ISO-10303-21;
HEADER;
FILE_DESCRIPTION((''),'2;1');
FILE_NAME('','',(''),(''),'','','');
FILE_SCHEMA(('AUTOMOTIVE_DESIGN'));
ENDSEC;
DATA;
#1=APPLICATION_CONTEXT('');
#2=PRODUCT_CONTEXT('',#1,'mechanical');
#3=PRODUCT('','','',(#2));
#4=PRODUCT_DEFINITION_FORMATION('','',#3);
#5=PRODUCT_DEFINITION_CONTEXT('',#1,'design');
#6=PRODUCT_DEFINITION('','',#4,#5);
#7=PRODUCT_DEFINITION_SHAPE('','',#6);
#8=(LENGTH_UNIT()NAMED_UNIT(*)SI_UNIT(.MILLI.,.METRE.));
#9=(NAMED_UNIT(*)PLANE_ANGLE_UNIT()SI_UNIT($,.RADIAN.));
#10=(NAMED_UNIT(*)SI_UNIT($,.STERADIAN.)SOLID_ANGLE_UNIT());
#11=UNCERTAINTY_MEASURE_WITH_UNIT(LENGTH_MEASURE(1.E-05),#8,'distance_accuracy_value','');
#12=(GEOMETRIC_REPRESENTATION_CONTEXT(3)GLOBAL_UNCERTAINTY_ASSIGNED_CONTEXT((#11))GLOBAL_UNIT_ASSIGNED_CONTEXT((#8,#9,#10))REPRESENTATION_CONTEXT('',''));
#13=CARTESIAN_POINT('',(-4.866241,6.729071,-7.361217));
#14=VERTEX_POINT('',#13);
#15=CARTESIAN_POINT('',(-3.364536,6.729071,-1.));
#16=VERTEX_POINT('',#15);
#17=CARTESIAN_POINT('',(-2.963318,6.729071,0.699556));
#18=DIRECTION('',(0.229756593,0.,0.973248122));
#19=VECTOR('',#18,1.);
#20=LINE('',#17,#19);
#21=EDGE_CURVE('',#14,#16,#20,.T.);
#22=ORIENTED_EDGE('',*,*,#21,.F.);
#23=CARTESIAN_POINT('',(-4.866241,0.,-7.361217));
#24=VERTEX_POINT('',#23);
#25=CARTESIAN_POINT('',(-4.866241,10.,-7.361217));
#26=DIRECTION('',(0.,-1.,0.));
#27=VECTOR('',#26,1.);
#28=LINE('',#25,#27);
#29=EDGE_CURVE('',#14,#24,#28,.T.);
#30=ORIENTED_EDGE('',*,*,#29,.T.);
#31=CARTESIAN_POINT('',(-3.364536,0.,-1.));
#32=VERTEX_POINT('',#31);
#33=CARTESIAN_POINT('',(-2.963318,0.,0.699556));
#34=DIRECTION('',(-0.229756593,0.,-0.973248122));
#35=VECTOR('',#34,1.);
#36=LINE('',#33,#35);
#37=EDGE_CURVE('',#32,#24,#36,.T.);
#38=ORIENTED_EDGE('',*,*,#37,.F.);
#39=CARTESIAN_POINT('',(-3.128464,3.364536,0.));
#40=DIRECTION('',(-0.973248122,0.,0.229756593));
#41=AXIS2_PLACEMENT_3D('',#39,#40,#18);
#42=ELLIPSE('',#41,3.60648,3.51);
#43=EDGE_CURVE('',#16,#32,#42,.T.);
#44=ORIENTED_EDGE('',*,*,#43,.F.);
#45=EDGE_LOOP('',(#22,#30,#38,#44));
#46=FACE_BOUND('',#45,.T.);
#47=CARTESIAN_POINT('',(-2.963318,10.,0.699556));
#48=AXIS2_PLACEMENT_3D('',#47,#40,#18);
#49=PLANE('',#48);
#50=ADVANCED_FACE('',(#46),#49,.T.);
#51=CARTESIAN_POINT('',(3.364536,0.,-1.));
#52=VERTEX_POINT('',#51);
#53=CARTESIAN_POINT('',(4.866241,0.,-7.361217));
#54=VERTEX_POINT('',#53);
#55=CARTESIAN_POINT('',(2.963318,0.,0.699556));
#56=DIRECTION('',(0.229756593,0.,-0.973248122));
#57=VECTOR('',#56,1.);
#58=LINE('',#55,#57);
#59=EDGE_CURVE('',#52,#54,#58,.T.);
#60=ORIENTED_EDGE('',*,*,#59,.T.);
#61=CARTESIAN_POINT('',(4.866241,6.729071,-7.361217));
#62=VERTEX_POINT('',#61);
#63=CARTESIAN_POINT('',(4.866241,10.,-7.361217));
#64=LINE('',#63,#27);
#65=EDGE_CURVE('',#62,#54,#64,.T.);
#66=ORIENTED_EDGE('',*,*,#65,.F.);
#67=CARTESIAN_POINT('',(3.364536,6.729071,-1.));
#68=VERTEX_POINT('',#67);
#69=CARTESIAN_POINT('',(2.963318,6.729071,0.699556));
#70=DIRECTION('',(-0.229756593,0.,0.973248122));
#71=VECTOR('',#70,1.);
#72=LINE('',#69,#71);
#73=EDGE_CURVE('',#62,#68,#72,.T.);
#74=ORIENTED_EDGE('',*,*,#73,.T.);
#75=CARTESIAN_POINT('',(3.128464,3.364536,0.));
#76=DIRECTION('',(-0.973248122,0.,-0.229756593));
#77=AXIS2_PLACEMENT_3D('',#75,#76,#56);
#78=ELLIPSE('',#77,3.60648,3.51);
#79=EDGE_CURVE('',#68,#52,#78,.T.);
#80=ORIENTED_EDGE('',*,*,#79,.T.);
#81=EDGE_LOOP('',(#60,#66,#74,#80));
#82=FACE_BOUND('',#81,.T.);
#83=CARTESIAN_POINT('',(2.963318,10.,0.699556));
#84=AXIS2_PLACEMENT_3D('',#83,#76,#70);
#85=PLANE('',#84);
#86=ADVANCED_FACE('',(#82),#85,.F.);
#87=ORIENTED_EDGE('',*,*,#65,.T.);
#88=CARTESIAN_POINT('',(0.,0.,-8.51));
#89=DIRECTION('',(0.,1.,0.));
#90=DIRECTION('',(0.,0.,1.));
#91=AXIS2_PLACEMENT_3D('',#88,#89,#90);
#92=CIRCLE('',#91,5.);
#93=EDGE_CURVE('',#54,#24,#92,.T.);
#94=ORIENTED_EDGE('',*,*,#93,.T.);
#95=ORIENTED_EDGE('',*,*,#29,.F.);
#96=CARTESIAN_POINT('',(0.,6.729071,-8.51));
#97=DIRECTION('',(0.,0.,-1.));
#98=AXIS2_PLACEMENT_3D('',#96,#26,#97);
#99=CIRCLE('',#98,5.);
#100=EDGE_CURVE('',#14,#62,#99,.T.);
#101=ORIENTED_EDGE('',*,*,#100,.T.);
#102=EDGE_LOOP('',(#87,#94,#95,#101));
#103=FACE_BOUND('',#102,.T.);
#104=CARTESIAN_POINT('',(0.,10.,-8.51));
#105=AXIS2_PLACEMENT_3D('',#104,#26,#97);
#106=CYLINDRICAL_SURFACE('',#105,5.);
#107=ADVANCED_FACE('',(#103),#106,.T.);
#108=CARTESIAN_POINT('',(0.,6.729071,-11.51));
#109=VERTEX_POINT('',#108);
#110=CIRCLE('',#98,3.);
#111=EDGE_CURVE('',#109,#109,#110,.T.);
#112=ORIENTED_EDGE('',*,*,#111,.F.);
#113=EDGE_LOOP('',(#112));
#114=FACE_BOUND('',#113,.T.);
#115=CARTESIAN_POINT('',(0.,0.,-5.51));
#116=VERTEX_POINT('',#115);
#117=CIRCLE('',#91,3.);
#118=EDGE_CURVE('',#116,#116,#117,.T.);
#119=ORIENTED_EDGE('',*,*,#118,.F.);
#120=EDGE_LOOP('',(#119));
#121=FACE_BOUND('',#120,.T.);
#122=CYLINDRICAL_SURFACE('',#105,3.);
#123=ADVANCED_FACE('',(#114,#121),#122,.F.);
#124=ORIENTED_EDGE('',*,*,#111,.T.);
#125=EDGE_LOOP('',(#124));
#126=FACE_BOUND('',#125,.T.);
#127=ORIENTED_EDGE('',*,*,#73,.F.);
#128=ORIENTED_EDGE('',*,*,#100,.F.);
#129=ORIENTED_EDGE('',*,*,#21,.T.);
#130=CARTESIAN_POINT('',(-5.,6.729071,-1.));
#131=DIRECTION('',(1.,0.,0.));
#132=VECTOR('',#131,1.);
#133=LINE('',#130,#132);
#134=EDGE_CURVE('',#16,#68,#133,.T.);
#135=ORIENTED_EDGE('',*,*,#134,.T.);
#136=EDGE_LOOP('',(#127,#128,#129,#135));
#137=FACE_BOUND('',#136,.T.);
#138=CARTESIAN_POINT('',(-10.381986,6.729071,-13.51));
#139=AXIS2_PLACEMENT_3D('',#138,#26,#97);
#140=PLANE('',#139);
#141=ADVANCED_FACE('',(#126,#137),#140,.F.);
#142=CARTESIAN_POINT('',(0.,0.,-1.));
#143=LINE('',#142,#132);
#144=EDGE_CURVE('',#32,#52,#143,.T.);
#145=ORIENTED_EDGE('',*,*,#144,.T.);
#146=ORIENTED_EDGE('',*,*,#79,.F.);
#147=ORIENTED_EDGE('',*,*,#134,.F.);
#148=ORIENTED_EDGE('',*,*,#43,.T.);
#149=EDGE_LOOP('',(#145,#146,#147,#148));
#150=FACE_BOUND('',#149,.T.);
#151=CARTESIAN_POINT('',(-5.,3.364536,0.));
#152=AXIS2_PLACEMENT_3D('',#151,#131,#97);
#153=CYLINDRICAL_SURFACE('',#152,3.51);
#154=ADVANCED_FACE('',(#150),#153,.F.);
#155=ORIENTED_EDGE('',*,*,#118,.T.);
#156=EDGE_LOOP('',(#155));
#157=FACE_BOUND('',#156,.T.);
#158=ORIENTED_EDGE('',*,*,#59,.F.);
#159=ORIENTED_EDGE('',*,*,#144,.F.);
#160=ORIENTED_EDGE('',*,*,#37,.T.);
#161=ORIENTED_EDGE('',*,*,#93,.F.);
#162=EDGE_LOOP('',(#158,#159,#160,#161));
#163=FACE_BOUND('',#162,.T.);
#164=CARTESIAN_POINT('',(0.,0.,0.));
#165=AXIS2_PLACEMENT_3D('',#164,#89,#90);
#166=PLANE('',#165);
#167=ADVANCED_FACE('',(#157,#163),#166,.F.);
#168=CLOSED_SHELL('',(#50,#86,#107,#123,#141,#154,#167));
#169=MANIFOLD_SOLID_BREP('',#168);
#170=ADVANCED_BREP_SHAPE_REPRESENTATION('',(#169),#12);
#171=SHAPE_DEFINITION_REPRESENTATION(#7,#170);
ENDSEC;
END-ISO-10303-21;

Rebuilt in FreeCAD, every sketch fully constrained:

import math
import FreeCAD as App
import Part
import Sketcher
from FreeCAD import Vector

doc = App.newDocument("Part")
body = doc.addObject("PartDesign::Body", "Body")

# Sketch on XZ plane
sketch1 = body.newObject("Sketcher::SketchObject", "Sketch")
sketch1.AttachmentSupport = (doc.getObject("XZ_Plane"), [""])
sketch1.MapMode = "FlatFace"
sketch1.addGeometry([
    Part.ArcOfCircle(Part.Circle(Vector(0, -8.51, 0), Vector(0, 0, 1), 5), math.radians(166.717258), math.radians(373.282742)),  # 0
    Part.LineSegment(Vector(-4.866241, -7.361217, 0), Vector(-3.364536, -1, 0)),  # 1
    Part.LineSegment(Vector(-3.364536, -1, 0), Vector(3.364536, -1, 0)),  # 2
    Part.LineSegment(Vector(3.364536, -1, 0), Vector(4.866241, -7.361217, 0)),  # 3
    Part.Circle(Vector(0, -8.51, 0), Vector(0, 0, 1), 3),  # 4
], False)
sketch1.addConstraint([
    Sketcher.Constraint("Tangent", 0, 1, 1, 1),
    Sketcher.Constraint("Coincident", 1, 2, 2, 1),
    Sketcher.Constraint("Coincident", 2, 2, 3, 1),
    Sketcher.Constraint("Tangent", 3, 2, 0, 2),
    Sketcher.Constraint("Horizontal", 2),
    Sketcher.Constraint("Coincident", 4, 3, 0, 3),
    Sketcher.Constraint("Symmetric", 0, 1, 3, 2, -2),
    Sketcher.Constraint("Diameter", 4, 6.0),
    Sketcher.Constraint("Radius", 0, 5.0),
    Sketcher.Constraint("DistanceY", 1, 2, -1, 1, 1.0),
    Sketcher.Constraint("DistanceY", 0, 3, -1, 1, 8.51),
    Sketcher.Constraint("DistanceX", 2, 1, 2, 2, 6.729071),
])
pad1 = body.newObject("PartDesign::Pad", "Pad")
pad1.Profile = sketch1
pad1.Length = 10
pad1.Reversed = True

# Sketch on YZ plane
sketch2 = body.newObject("Sketcher::SketchObject", "Sketch001")
sketch2.AttachmentSupport = (doc.getObject("YZ_Plane"), [""])
sketch2.MapMode = "FlatFace"
sketch2.addGeometry(Part.Circle(Vector(3.364536, 0, 0), Vector(0, 0, 1), 3.51), False)
sketch2.addConstraint([
    Sketcher.Constraint("PointOnObject", 0, 3, -1),
    Sketcher.Constraint("Diameter", 0, 7.02),
    Sketcher.Constraint("DistanceX", -1, 1, 0, 3, 3.364536),
])
pocket1 = body.newObject("PartDesign::Pocket", "Pocket")
pocket1.Profile = sketch2
pocket1.Type = "ThroughAll"
pocket1.Midplane = True

# Sketch on XY plane
sketch3 = body.newObject("Sketcher::SketchObject", "Sketch002")
sketch3.AttachmentSupport = (doc.getObject("XY_Plane"), [""])
sketch3.MapMode = "FlatFace"
sketch3.AttachmentOffset = App.Placement(Vector(0, 0, -1), App.Rotation())
sketch3.addGeometry([
    Part.LineSegment(Vector(-10.381986, 6.729071, 0), Vector(12.651385, 6.729071, 0)),
    Part.LineSegment(Vector(12.651385, 6.729071, 0), Vector(6.885028, 11.685096, 0)),
    Part.LineSegment(Vector(6.885028, 11.685096, 0), Vector(-4.618479, 12.095501, 0)),
    Part.LineSegment(Vector(-4.618479, 12.095501, 0), Vector(-10.381986, 6.729071, 0)),
], False)
sketch3.addConstraint([
    Sketcher.Constraint("Coincident", 0, 2, 1, 1),
    Sketcher.Constraint("Coincident", 1, 2, 2, 1),
    Sketcher.Constraint("Coincident", 2, 2, 3, 1),
    Sketcher.Constraint("Coincident", 3, 2, 0, 1),
    Sketcher.Constraint("Horizontal", 0),
    Sketcher.Constraint("DistanceX", 0, 1, 0, 2, 23.033371),
    Sketcher.Constraint("DistanceY", -1, 1, 2, 2, 12.095501),
    Sketcher.Constraint("Distance", 1, 7.603489),
    Sketcher.Constraint("Distance", 3, 7.875061),
    Sketcher.Constraint("DistanceY", -1, 1, 0, 2, 6.729071),
    Sketcher.Constraint("DistanceX", -1, 1, 1, 2, 6.885028),
    Sketcher.Constraint("DistanceX", 2, 2, -1, 1, 4.618479),
])
pocket2 = body.newObject("PartDesign::Pocket", "Pocket001")
pocket2.Profile = sketch3
pocket2.Type = "ThroughAll"

doc.recompute()
